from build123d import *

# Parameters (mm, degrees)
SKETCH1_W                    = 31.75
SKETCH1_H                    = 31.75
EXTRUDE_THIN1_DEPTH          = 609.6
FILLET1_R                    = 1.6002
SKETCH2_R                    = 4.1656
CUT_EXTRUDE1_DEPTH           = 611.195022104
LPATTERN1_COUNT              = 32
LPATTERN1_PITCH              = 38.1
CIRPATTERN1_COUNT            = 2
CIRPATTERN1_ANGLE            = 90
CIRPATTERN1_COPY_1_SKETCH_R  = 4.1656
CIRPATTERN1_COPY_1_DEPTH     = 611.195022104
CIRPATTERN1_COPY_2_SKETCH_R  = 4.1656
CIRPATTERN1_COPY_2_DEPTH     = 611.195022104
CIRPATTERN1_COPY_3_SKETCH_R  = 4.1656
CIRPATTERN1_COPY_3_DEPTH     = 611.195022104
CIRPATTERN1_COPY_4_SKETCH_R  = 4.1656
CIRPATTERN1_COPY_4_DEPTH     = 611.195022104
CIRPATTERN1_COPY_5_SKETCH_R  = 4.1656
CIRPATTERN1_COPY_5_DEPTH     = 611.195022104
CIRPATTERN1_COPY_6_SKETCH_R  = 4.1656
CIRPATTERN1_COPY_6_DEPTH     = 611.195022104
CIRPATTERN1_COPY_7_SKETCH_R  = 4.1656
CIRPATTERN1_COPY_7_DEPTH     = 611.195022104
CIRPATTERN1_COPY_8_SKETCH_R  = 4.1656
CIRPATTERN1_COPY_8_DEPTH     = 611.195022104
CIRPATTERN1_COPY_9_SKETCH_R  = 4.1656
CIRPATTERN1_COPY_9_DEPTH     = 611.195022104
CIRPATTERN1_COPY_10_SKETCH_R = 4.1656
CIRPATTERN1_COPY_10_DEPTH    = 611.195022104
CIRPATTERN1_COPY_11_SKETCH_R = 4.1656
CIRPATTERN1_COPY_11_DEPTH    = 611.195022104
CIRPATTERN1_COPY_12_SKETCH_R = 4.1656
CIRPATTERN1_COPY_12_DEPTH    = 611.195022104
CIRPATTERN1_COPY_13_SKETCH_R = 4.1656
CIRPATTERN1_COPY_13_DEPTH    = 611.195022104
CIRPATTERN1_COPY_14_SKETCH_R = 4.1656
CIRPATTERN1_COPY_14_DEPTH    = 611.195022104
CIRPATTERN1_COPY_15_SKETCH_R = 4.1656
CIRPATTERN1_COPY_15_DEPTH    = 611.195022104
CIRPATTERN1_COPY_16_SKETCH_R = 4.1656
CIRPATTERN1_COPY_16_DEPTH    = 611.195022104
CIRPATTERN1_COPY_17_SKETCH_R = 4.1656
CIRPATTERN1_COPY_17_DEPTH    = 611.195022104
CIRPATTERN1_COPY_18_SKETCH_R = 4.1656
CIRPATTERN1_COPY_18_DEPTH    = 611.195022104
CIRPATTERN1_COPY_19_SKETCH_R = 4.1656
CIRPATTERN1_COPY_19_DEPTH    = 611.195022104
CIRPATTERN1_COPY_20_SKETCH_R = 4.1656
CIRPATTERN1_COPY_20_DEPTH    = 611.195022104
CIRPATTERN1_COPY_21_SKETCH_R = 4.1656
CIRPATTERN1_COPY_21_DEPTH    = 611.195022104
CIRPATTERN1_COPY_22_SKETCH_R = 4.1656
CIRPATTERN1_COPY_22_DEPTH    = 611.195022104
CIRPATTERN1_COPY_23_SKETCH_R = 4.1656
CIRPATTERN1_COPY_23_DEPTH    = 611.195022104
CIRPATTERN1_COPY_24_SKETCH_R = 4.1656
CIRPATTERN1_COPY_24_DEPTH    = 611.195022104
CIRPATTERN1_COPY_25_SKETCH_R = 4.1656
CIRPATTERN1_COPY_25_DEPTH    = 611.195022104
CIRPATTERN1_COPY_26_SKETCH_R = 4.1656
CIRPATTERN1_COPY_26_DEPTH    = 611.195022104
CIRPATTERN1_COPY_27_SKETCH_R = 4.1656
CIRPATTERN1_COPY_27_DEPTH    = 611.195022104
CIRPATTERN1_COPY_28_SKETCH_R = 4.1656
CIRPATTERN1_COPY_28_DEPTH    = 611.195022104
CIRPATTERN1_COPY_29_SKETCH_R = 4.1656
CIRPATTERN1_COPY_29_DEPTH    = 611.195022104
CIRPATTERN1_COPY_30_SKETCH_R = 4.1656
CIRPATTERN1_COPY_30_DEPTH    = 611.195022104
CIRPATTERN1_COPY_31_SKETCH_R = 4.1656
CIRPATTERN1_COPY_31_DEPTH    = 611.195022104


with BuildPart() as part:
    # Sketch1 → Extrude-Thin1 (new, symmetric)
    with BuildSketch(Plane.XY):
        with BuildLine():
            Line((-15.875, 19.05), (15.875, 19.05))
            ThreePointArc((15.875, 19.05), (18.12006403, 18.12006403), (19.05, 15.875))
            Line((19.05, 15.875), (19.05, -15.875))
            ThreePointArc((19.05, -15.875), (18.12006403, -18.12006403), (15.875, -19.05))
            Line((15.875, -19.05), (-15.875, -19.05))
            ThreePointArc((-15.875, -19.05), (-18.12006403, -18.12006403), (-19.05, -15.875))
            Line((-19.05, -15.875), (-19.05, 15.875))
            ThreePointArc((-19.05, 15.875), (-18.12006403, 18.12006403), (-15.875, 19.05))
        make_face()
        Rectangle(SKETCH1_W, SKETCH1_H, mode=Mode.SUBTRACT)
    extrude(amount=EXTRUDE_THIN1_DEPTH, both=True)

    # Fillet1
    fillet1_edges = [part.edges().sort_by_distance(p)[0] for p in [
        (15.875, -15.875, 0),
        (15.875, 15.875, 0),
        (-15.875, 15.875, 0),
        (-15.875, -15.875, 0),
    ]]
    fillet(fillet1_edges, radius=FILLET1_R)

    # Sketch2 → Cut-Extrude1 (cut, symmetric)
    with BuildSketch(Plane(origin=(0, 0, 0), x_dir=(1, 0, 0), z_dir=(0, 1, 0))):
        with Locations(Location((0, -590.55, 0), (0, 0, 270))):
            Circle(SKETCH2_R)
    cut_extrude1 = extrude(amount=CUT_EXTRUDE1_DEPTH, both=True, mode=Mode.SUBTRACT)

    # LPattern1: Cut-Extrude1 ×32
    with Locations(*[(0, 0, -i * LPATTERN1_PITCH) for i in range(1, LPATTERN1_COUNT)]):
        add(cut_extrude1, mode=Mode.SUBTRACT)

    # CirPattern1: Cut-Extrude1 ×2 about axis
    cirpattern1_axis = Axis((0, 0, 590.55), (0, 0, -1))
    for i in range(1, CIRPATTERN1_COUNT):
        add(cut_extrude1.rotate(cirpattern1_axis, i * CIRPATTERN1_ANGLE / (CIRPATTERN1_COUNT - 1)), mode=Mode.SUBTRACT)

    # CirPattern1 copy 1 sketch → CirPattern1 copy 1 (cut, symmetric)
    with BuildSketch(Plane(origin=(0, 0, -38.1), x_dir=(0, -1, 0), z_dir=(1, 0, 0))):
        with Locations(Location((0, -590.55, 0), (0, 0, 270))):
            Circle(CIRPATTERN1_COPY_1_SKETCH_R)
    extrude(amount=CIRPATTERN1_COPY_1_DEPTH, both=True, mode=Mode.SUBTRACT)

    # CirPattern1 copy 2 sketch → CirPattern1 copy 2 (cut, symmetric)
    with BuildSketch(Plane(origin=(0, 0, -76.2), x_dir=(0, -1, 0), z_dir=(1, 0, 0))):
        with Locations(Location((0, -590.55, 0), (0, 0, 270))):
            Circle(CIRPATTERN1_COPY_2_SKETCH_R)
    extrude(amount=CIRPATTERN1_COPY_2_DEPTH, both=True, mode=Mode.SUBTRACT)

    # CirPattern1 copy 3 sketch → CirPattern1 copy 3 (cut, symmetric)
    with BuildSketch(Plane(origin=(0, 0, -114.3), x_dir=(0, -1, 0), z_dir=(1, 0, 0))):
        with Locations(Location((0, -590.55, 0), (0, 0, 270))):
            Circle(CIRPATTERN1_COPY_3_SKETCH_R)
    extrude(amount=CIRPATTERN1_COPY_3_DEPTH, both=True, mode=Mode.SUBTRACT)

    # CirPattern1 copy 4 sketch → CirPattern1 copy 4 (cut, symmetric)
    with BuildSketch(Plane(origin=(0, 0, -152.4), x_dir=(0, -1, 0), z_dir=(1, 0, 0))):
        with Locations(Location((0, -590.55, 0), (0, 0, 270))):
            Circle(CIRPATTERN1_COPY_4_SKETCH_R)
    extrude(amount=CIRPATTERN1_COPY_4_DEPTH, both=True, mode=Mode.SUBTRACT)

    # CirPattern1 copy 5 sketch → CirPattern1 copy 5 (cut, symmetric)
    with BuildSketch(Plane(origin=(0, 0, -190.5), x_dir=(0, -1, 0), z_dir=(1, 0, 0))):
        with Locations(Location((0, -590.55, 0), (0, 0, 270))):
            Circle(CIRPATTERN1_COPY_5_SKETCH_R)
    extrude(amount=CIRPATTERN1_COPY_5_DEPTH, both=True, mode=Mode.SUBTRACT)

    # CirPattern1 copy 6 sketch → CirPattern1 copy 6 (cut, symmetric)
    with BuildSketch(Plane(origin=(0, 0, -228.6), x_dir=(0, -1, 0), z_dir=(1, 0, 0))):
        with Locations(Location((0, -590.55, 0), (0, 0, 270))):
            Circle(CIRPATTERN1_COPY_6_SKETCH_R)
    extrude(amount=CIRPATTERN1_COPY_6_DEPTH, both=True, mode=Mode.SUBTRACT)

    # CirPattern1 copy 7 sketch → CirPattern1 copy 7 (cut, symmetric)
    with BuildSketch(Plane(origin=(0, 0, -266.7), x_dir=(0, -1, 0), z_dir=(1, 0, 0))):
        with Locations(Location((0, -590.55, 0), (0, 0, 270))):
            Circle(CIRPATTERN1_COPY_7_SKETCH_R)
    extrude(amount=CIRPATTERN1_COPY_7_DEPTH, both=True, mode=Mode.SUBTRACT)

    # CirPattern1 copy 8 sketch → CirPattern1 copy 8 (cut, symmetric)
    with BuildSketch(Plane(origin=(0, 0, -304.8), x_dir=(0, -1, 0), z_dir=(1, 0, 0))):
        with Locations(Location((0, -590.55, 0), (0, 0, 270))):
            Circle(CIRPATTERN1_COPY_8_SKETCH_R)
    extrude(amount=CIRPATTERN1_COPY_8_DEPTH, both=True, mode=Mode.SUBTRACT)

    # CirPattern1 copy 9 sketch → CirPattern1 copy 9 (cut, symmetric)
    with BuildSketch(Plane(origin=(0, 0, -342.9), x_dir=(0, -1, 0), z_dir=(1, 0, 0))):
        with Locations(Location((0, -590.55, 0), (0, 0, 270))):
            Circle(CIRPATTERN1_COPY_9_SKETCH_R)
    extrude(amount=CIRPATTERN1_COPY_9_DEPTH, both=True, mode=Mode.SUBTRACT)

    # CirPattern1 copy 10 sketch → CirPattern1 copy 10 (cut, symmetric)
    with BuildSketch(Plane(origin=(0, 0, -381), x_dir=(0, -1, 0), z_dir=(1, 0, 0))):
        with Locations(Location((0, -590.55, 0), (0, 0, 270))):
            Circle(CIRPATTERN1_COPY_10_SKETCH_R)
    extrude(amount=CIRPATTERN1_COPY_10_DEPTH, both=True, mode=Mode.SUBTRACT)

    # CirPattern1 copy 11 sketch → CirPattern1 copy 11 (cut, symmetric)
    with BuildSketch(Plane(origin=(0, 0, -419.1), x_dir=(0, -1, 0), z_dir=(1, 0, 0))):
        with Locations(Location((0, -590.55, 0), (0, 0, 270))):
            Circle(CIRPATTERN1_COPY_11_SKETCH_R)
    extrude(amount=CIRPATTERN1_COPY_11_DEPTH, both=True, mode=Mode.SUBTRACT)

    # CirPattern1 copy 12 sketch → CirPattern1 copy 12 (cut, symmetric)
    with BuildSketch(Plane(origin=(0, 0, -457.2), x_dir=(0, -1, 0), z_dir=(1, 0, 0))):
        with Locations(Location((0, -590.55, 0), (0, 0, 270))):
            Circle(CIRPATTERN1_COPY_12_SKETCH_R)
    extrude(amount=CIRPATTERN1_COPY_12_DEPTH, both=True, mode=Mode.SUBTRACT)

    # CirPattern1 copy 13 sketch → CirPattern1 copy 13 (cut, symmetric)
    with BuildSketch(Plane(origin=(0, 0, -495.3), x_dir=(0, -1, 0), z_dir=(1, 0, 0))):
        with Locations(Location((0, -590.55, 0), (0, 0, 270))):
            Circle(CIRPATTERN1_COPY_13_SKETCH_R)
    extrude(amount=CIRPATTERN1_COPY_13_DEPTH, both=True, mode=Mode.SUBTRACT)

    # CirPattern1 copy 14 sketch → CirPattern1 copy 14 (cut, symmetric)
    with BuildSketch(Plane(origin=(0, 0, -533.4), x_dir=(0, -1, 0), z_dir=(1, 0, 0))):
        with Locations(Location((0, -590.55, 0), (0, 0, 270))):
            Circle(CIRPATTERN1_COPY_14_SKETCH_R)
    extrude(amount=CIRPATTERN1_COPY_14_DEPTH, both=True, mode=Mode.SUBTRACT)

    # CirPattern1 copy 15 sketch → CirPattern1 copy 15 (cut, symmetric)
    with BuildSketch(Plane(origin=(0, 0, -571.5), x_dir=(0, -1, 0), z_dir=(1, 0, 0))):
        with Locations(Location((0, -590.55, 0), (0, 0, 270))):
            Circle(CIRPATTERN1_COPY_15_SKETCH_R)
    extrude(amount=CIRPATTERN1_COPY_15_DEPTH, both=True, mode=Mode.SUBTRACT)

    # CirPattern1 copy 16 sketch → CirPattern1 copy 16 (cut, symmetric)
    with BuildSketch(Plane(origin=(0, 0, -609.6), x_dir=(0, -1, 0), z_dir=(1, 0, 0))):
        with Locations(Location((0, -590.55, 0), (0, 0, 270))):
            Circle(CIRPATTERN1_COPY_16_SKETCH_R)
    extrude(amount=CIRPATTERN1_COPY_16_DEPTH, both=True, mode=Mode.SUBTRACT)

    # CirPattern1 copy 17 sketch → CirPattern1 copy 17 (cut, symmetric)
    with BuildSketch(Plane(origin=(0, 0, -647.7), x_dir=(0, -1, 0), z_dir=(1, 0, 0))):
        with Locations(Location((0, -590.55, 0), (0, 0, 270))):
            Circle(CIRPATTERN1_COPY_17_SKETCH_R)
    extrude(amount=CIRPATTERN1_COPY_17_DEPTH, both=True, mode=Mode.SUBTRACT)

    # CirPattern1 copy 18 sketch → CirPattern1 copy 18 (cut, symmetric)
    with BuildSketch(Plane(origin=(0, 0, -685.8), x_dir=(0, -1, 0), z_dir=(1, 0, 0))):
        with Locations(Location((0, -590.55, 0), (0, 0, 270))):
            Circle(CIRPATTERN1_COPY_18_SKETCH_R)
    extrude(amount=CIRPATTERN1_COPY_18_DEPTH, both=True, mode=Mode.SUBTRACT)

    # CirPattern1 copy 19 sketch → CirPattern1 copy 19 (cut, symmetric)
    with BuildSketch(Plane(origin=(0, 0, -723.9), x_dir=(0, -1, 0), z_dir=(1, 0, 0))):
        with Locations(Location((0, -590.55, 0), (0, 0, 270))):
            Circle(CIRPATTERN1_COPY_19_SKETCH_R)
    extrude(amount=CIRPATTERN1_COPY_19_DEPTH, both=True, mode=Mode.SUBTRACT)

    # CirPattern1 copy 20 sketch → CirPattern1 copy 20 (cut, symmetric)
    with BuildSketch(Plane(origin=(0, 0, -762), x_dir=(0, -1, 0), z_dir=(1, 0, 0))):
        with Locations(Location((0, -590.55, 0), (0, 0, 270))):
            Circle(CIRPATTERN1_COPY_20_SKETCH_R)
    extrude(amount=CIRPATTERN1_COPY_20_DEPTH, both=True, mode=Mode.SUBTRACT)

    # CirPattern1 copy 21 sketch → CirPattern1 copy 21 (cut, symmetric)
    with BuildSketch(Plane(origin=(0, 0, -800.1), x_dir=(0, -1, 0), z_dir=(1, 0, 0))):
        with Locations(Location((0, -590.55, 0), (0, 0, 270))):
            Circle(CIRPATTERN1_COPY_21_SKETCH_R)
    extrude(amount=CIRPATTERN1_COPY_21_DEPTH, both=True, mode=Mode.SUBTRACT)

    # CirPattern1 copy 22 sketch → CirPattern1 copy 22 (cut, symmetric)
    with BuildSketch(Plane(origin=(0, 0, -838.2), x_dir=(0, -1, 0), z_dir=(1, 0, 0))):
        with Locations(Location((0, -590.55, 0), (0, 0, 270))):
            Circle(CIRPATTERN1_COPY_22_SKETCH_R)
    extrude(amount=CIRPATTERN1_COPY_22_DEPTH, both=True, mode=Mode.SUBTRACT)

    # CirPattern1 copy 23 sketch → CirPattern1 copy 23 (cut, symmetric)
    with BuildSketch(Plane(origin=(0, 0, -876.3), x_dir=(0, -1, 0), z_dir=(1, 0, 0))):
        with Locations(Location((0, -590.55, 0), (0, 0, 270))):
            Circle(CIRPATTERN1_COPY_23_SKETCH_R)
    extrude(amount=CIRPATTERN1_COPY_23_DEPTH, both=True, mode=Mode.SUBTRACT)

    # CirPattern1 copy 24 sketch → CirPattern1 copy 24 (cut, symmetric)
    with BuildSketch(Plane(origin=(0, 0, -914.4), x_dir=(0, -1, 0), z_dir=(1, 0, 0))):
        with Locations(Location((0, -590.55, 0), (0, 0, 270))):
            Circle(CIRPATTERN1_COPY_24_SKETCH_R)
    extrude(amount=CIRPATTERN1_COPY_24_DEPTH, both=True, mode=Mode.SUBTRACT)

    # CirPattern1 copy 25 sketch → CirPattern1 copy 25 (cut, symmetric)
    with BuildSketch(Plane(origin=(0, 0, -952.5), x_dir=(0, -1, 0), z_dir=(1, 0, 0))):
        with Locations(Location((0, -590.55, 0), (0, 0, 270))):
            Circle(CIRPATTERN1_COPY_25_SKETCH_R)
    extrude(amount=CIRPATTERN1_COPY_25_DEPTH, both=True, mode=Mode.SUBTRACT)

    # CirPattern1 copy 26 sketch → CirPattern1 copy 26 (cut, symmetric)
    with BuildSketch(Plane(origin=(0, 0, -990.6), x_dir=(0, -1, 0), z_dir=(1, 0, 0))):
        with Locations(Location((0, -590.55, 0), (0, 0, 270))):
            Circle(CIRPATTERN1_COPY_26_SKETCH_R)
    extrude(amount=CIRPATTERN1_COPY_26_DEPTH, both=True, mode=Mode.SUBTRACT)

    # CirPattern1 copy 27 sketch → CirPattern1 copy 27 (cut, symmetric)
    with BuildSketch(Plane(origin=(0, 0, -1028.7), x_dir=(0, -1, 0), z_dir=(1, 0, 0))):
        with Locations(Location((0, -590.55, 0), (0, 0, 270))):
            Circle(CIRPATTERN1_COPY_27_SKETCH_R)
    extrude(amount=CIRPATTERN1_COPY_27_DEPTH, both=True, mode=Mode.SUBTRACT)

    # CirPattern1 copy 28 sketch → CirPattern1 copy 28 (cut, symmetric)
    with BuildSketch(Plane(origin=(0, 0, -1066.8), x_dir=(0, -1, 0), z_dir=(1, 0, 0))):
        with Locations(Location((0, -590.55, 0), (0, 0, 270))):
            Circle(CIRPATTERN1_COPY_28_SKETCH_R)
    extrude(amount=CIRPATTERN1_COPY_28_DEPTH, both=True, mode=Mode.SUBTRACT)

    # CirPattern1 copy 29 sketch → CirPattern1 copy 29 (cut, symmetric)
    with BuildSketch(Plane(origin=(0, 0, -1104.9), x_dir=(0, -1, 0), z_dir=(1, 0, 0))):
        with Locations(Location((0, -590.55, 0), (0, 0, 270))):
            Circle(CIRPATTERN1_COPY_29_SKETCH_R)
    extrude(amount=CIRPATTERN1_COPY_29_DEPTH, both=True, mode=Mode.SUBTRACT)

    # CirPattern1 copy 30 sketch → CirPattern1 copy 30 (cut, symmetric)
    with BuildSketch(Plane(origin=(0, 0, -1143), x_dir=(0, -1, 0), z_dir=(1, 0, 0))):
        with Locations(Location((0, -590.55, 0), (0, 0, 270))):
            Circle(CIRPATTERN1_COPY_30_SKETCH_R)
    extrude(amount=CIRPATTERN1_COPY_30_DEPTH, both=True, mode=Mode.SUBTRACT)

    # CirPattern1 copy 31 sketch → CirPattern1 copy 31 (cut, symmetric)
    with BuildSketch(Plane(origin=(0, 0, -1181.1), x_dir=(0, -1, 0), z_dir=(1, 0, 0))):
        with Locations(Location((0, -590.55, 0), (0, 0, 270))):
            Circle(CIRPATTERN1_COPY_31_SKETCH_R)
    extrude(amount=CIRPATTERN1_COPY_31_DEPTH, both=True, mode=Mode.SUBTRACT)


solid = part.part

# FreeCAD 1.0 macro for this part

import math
import FreeCAD as App
import Part
import Sketcher

V = App.Vector
Q = App.Units.Quantity


def edges_at(feature, points):
    """Names of the edges that pass closest to the given points."""
    edges = feature.Shape.Edges
    near = lambda p: min(range(len(edges)), key=lambda i: edges[i].distToShape(Part.Vertex(*p))[0])
    return sorted({f"Edge{near(p) + 1}" for p in points})


def add_polygon(sketch, points):
    """Adds a closed chain of lines whose ends are joined by coincident constraints."""
    first, n = sketch.GeometryCount, len(points)
    for a, b in zip(points, points[1:] + points[:1]):
        sketch.addGeometry(Part.LineSegment(App.Vector(*a, 0), App.Vector(*b, 0)), False)
    for i in range(n):
        sketch.addConstraint(Sketcher.Constraint("Coincident", first + i, 2, first + (i + 1) % n, 1))

doc = App.newDocument("Part")
body = doc.addObject("PartDesign::Body", "Body")

sketch1 = body.newObject("Sketcher::SketchObject", "Sketch")
sketch1.AttachmentSupport = (doc.getObject("XY_Plane"), [""])
sketch1.MapMode = "FlatFace"
sketch1.addGeometry(Part.LineSegment(V(15.9, 19.1, 0), V(-15.9, 19.1, 0)), False)
sketch1.addGeometry(Part.ArcOfCircle(Part.Circle(V(-15.9, 15.9, 0), V(0, 0, 1), 3.2), math.radians(90), math.radians(180)), False)
sketch1.addGeometry(Part.LineSegment(V(-19.1, 15.9, 0), V(-19.1, -15.9, 0)), False)
sketch1.addGeometry(Part.ArcOfCircle(Part.Circle(V(-15.9, -15.9, 0), V(0, 0, 1), 3.2), math.radians(-180), math.radians(-90)), False)
sketch1.addGeometry(Part.LineSegment(V(-15.9, -19.1, 0), V(15.9, -19.1, 0)), False)
sketch1.addGeometry(Part.ArcOfCircle(Part.Circle(V(15.9, -15.9, 0), V(0, 0, 1), 3.2), math.radians(-90), math.radians(0)), False)
sketch1.addGeometry(Part.LineSegment(V(19.1, -15.9, 0), V(19.1, 15.9, 0)), False)
sketch1.addGeometry(Part.ArcOfCircle(Part.Circle(V(15.9, 15.9, 0), V(0, 0, 1), 3.2), math.radians(0), math.radians(90)), False)
add_polygon(sketch1, [(-15.9, -15.9), (-15.9, 15.9), (15.9, 15.9), (15.9, -15.9)])
sketch1.addConstraint([
    Sketcher.Constraint("Tangent", 0, 2, 1, 1),
    Sketcher.Constraint("Tangent", 1, 2, 2, 1),
    Sketcher.Constraint("Tangent", 2, 2, 3, 1),
    Sketcher.Constraint("Tangent", 3, 2, 4, 1),
    Sketcher.Constraint("Tangent", 4, 2, 5, 1),
    Sketcher.Constraint("Tangent", 5, 2, 6, 1),
    Sketcher.Constraint("Tangent", 6, 2, 7, 1),
    Sketcher.Constraint("Tangent", 7, 2, 0, 1),
    Sketcher.Constraint("Horizontal", 0),
    Sketcher.Constraint("Vertical", 2),
    Sketcher.Constraint("Horizontal", 4),
    Sketcher.Constraint("Vertical", 6),
    Sketcher.Constraint("Vertical", 8),
    Sketcher.Constraint("Horizontal", 9),
    Sketcher.Constraint("Vertical", 10),
    Sketcher.Constraint("Horizontal", 11),
    Sketcher.Constraint("Coincident", 8, 2, 1, 3),
    Sketcher.Constraint("Coincident", 9, 2, 7, 3),
    Sketcher.Constraint("Coincident", 10, 2, 5, 3),
    Sketcher.Constraint("Equal", 1, 3),
    Sketcher.Constraint("Symmetric", 1, 3, 5, 3, -1, 1),
    Sketcher.Constraint("Equal", 11, 2),
    Sketcher.Constraint("Radius", 1, Q("0.125 in")),
    Sketcher.Constraint("DistanceX", 0, 2, 0, 1, Q("1.25 in")),
])
pad1 = body.newObject("PartDesign::Pad", "Pad")
pad1.Profile = sketch1
pad1.Length = Q("48 in")
pad1.Midplane = True
doc.recompute()

fillet = body.newObject("PartDesign::Fillet", "Fillet")
fillet.Base = (pad1, edges_at(pad1, [
    (15.875, -15.875, 0),
    (15.875, 15.875, 0),
    (-15.875, 15.875, 0),
    (-15.875, -15.875, 0),
]))
fillet.Radius = Q("0.063 in")

sketch2 = body.newObject("Sketcher::SketchObject", "Sketch001")
sketch2.AttachmentSupport = (doc.getObject("XZ_Plane"), [""])
sketch2.MapMode = "FlatFace"
sketch2.addGeometry(Part.Circle(V(0, 590.5, 0), V(0, 0, 1), 4.2), False)
sketch2.addConstraint([
    Sketcher.Constraint("PointOnObject", 0, 3, -2),
    Sketcher.Constraint("Diameter", 0, Q("0.328 in")),
    Sketcher.Constraint("DistanceY", -1, 1, 0, 3, Q("23.25 in")),
])
pocket1 = body.newObject("PartDesign::Pocket", "Pocket")
pocket1.Profile = sketch2
pocket1.Length = 1222.390044
pocket1.Midplane = True
doc.recompute()

linearpattern = body.newObject("PartDesign::LinearPattern", "LinearPattern")
linearpattern.Originals = [pocket1]
linearpattern.Direction = (doc.getObject("Z_Axis"), [""])
linearpattern.Mode = "offset"
linearpattern.Offset = Q("1.5 in")
linearpattern.Occurrences = 32
linearpattern.Reversed = True
body.Tip = linearpattern
doc.recompute()

polarpattern = body.newObject("PartDesign::PolarPattern", "PolarPattern")
polarpattern.Originals = [pocket1]
polarpattern.Axis = (doc.getObject("Z_Axis"), [""])
polarpattern.Angle = 90
polarpattern.Occurrences = 2
polarpattern.Reversed = True
body.Tip = polarpattern

sketch3 = body.newObject("Sketcher::SketchObject", "Sketch002")
sketch3.AttachmentSupport = (doc.getObject("YZ_Plane"), [""])
sketch3.MapMode = "FlatFace"
sketch3.addGeometry(Part.Circle(V(0, 552.5, 0), V(0, 0, 1), 4.2), False)
sketch3.addConstraint([
    Sketcher.Constraint("PointOnObject", 0, 3, -2),
    Sketcher.Constraint("Diameter", 0, Q("0.328 in")),
    Sketcher.Constraint("DistanceY", -1, 1, 0, 3, Q("21.75 in")),
])
pocket2 = body.newObject("PartDesign::Pocket", "Pocket001")
pocket2.Profile = sketch3
pocket2.Length = 1222.390044
pocket2.Midplane = True

sketch4 = body.newObject("Sketcher::SketchObject", "Sketch003")
sketch4.AttachmentSupport = (doc.getObject("YZ_Plane"), [""])
sketch4.MapMode = "FlatFace"
sketch4.addGeometry(Part.Circle(V(0, 514.4, 0), V(0, 0, 1), 4.2), False)
sketch4.addConstraint([
    Sketcher.Constraint("PointOnObject", 0, 3, -2),
    Sketcher.Constraint("Diameter", 0, Q("0.328 in")),
    Sketcher.Constraint("DistanceY", -1, 1, 0, 3, Q("20.25 in")),
])
pocket3 = body.newObject("PartDesign::Pocket", "Pocket002")
pocket3.Profile = sketch4
pocket3.Length = 1222.390044
pocket3.Midplane = True

sketch5 = body.newObject("Sketcher::SketchObject", "Sketch004")
sketch5.AttachmentSupport = (doc.getObject("YZ_Plane"), [""])
sketch5.MapMode = "FlatFace"
sketch5.addGeometry(Part.Circle(V(0, 476.2, 0), V(0, 0, 1), 4.2), False)
sketch5.addConstraint([
    Sketcher.Constraint("PointOnObject", 0, 3, -2),
    Sketcher.Constraint("Diameter", 0, Q("0.328 in")),
    Sketcher.Constraint("DistanceY", -1, 1, 0, 3, Q("18.75 in")),
])
pocket4 = body.newObject("PartDesign::Pocket", "Pocket003")
pocket4.Profile = sketch5
pocket4.Length = 1222.390044
pocket4.Midplane = True

sketch6 = body.newObject("Sketcher::SketchObject", "Sketch005")
sketch6.AttachmentSupport = (doc.getObject("YZ_Plane"), [""])
sketch6.MapMode = "FlatFace"
sketch6.addGeometry(Part.Circle(V(0, 438.1, 0), V(0, 0, 1), 4.2), False)
sketch6.addConstraint([
    Sketcher.Constraint("PointOnObject", 0, 3, -2),
    Sketcher.Constraint("Diameter", 0, Q("0.328 in")),
    Sketcher.Constraint("DistanceY", -1, 1, 0, 3, Q("17.25 in")),
])
pocket5 = body.newObject("PartDesign::Pocket", "Pocket004")
pocket5.Profile = sketch6
pocket5.Length = 1222.390044
pocket5.Midplane = True

sketch7 = body.newObject("Sketcher::SketchObject", "Sketch006")
sketch7.AttachmentSupport = (doc.getObject("YZ_Plane"), [""])
sketch7.MapMode = "FlatFace"
sketch7.addGeometry(Part.Circle(V(0, 400.1, 0), V(0, 0, 1), 4.2), False)
sketch7.addConstraint([
    Sketcher.Constraint("PointOnObject", 0, 3, -2),
    Sketcher.Constraint("Diameter", 0, Q("0.328 in")),
    Sketcher.Constraint("DistanceY", -1, 1, 0, 3, Q("15.75 in")),
])
pocket6 = body.newObject("PartDesign::Pocket", "Pocket005")
pocket6.Profile = sketch7
pocket6.Length = 1222.390044
pocket6.Midplane = True

sketch8 = body.newObject("Sketcher::SketchObject", "Sketch007")
sketch8.AttachmentSupport = (doc.getObject("YZ_Plane"), [""])
sketch8.MapMode = "FlatFace"
sketch8.addGeometry(Part.Circle(V(0, 361.9, 0), V(0, 0, 1), 4.2), False)
sketch8.addConstraint([
    Sketcher.Constraint("PointOnObject", 0, 3, -2),
    Sketcher.Constraint("Diameter", 0, Q("0.328 in")),
    Sketcher.Constraint("DistanceY", -1, 1, 0, 3, Q("14.25 in")),
])
pocket7 = body.newObject("PartDesign::Pocket", "Pocket006")
pocket7.Profile = sketch8
pocket7.Length = 1222.390044
pocket7.Midplane = True

sketch9 = body.newObject("Sketcher::SketchObject", "Sketch008")
sketch9.AttachmentSupport = (doc.getObject("YZ_Plane"), [""])
sketch9.MapMode = "FlatFace"
sketch9.addGeometry(Part.Circle(V(0, 323.9, 0), V(0, 0, 1), 4.2), False)
sketch9.addConstraint([
    Sketcher.Constraint("PointOnObject", 0, 3, -2),
    Sketcher.Constraint("Diameter", 0, Q("0.328 in")),
    Sketcher.Constraint("DistanceY", -1, 1, 0, 3, Q("12.75 in")),
])
pocket8 = body.newObject("PartDesign::Pocket", "Pocket007")
pocket8.Profile = sketch9
pocket8.Length = 1222.390044
pocket8.Midplane = True

sketch10 = body.newObject("Sketcher::SketchObject", "Sketch009")
sketch10.AttachmentSupport = (doc.getObject("YZ_Plane"), [""])
sketch10.MapMode = "FlatFace"
sketch10.addGeometry(Part.Circle(V(0, 285.8, 0), V(0, 0, 1), 4.2), False)
sketch10.addConstraint([
    Sketcher.Constraint("PointOnObject", 0, 3, -2),
    Sketcher.Constraint("Diameter", 0, Q("0.328 in")),
    Sketcher.Constraint("DistanceY", -1, 1, 0, 3, Q("11.25 in")),
])
pocket9 = body.newObject("PartDesign::Pocket", "Pocket008")
pocket9.Profile = sketch10
pocket9.Length = 1222.390044
pocket9.Midplane = True

sketch11 = body.newObject("Sketcher::SketchObject", "Sketch010")
sketch11.AttachmentSupport = (doc.getObject("YZ_Plane"), [""])
sketch11.MapMode = "FlatFace"
sketch11.addGeometry(Part.Circle(V(0, 247.7, 0), V(0, 0, 1), 4.2), False)
sketch11.addConstraint([
    Sketcher.Constraint("PointOnObject", 0, 3, -2),
    Sketcher.Constraint("Diameter", 0, Q("0.328 in")),
    Sketcher.Constraint("DistanceY", -1, 1, 0, 3, Q("9.75 in")),
])
pocket10 = body.newObject("PartDesign::Pocket", "Pocket009")
pocket10.Profile = sketch11
pocket10.Length = 1222.390044
pocket10.Midplane = True

sketch12 = body.newObject("Sketcher::SketchObject", "Sketch011")
sketch12.AttachmentSupport = (doc.getObject("YZ_Plane"), [""])
sketch12.MapMode = "FlatFace"
sketch12.addGeometry(Part.Circle(V(0, 209.6, 0), V(0, 0, 1), 4.2), False)
sketch12.addConstraint([
    Sketcher.Constraint("PointOnObject", 0, 3, -2),
    Sketcher.Constraint("Diameter", 0, Q("0.328 in")),
    Sketcher.Constraint("DistanceY", -1, 1, 0, 3, Q("8.25 in")),
])
pocket11 = body.newObject("PartDesign::Pocket", "Pocket010")
pocket11.Profile = sketch12
pocket11.Length = 1222.390044
pocket11.Midplane = True

sketch13 = body.newObject("Sketcher::SketchObject", "Sketch012")
sketch13.AttachmentSupport = (doc.getObject("YZ_Plane"), [""])
sketch13.MapMode = "FlatFace"
sketch13.addGeometry(Part.Circle(V(0, 171.4, 0), V(0, 0, 1), 4.2), False)
sketch13.addConstraint([
    Sketcher.Constraint("PointOnObject", 0, 3, -2),
    Sketcher.Constraint("Diameter", 0, Q("0.328 in")),
    Sketcher.Constraint("DistanceY", -1, 1, 0, 3, Q("6.75 in")),
])
pocket12 = body.newObject("PartDesign::Pocket", "Pocket011")
pocket12.Profile = sketch13
pocket12.Length = 1222.390044
pocket12.Midplane = True

sketch14 = body.newObject("Sketcher::SketchObject", "Sketch013")
sketch14.AttachmentSupport = (doc.getObject("YZ_Plane"), [""])
sketch14.MapMode = "FlatFace"
sketch14.addGeometry(Part.Circle(V(0, 133.3, 0), V(0, 0, 1), 4.2), False)
sketch14.addConstraint([
    Sketcher.Constraint("PointOnObject", 0, 3, -2),
    Sketcher.Constraint("Diameter", 0, Q("0.328 in")),
    Sketcher.Constraint("DistanceY", -1, 1, 0, 3, Q("5.25 in")),
])
pocket13 = body.newObject("PartDesign::Pocket", "Pocket012")
pocket13.Profile = sketch14
pocket13.Length = 1222.390044
pocket13.Midplane = True

sketch15 = body.newObject("Sketcher::SketchObject", "Sketch014")
sketch15.AttachmentSupport = (doc.getObject("YZ_Plane"), [""])
sketch15.MapMode = "FlatFace"
sketch15.addGeometry(Part.Circle(V(0, 95.2, 0), V(0, 0, 1), 4.2), False)
sketch15.addConstraint([
    Sketcher.Constraint("PointOnObject", 0, 3, -2),
    Sketcher.Constraint("Diameter", 0, Q("0.328 in")),
    Sketcher.Constraint("DistanceY", -1, 1, 0, 3, Q("3.75 in")),
])
pocket14 = body.newObject("PartDesign::Pocket", "Pocket013")
pocket14.Profile = sketch15
pocket14.Length = 1222.390044
pocket14.Midplane = True

sketch16 = body.newObject("Sketcher::SketchObject", "Sketch015")
sketch16.AttachmentSupport = (doc.getObject("YZ_Plane"), [""])
sketch16.MapMode = "FlatFace"
sketch16.addGeometry(Part.Circle(V(0, 57.1, 0), V(0, 0, 1), 4.2), False)
sketch16.addConstraint([
    Sketcher.Constraint("PointOnObject", 0, 3, -2),
    Sketcher.Constraint("Diameter", 0, Q("0.328 in")),
    Sketcher.Constraint("DistanceY", -1, 1, 0, 3, Q("2.25 in")),
])
pocket15 = body.newObject("PartDesign::Pocket", "Pocket014")
pocket15.Profile = sketch16
pocket15.Length = 1222.390044
pocket15.Midplane = True

sketch17 = body.newObject("Sketcher::SketchObject", "Sketch016")
sketch17.AttachmentSupport = (doc.getObject("YZ_Plane"), [""])
sketch17.MapMode = "FlatFace"
sketch17.addGeometry(Part.Circle(V(0, 19.1, 0), V(0, 0, 1), 4.2), False)
sketch17.addConstraint([
    Sketcher.Constraint("PointOnObject", 0, 3, -2),
    Sketcher.Constraint("Diameter", 0, Q("0.328 in")),
    Sketcher.Constraint("DistanceY", -1, 1, 0, 3, Q("0.75 in")),
])
pocket16 = body.newObject("PartDesign::Pocket", "Pocket015")
pocket16.Profile = sketch17
pocket16.Length = 1222.390044
pocket16.Midplane = True

sketch18 = body.newObject("Sketcher::SketchObject", "Sketch017")
sketch18.AttachmentSupport = (doc.getObject("YZ_Plane"), [""])
sketch18.MapMode = "FlatFace"
sketch18.addGeometry(Part.Circle(V(0, -19.1, 0), V(0, 0, 1), 4.2), False)
sketch18.addConstraint([
    Sketcher.Constraint("PointOnObject", 0, 3, -2),
    Sketcher.Constraint("Diameter", 0, Q("0.328 in")),
    Sketcher.Constraint("DistanceY", 0, 3, -1, 1, Q("0.75 in")),
])
pocket17 = body.newObject("PartDesign::Pocket", "Pocket016")
pocket17.Profile = sketch18
pocket17.Length = 1222.390044
pocket17.Midplane = True

sketch19 = body.newObject("Sketcher::SketchObject", "Sketch018")
sketch19.AttachmentSupport = (doc.getObject("YZ_Plane"), [""])
sketch19.MapMode = "FlatFace"
sketch19.addGeometry(Part.Circle(V(0, -57.1, 0), V(0, 0, 1), 4.2), False)
sketch19.addConstraint([
    Sketcher.Constraint("PointOnObject", 0, 3, -2),
    Sketcher.Constraint("Diameter", 0, Q("0.328 in")),
    Sketcher.Constraint("DistanceY", 0, 3, -1, 1, Q("2.25 in")),
])
pocket18 = body.newObject("PartDesign::Pocket", "Pocket017")
pocket18.Profile = sketch19
pocket18.Length = 1222.390044
pocket18.Midplane = True

sketch20 = body.newObject("Sketcher::SketchObject", "Sketch019")
sketch20.AttachmentSupport = (doc.getObject("YZ_Plane"), [""])
sketch20.MapMode = "FlatFace"
sketch20.addGeometry(Part.Circle(V(0, -95.2, 0), V(0, 0, 1), 4.2), False)
sketch20.addConstraint([
    Sketcher.Constraint("PointOnObject", 0, 3, -2),
    Sketcher.Constraint("Diameter", 0, Q("0.328 in")),
    Sketcher.Constraint("DistanceY", 0, 3, -1, 1, Q("3.75 in")),
])
pocket19 = body.newObject("PartDesign::Pocket", "Pocket018")
pocket19.Profile = sketch20
pocket19.Length = 1222.390044
pocket19.Midplane = True

sketch21 = body.newObject("Sketcher::SketchObject", "Sketch020")
sketch21.AttachmentSupport = (doc.getObject("YZ_Plane"), [""])
sketch21.MapMode = "FlatFace"
sketch21.addGeometry(Part.Circle(V(0, -133.3, 0), V(0, 0, 1), 4.2), False)
sketch21.addConstraint([
    Sketcher.Constraint("PointOnObject", 0, 3, -2),
    Sketcher.Constraint("Diameter", 0, Q("0.328 in")),
    Sketcher.Constraint("DistanceY", 0, 3, -1, 1, Q("5.25 in")),
])
pocket20 = body.newObject("PartDesign::Pocket", "Pocket019")
pocket20.Profile = sketch21
pocket20.Length = 1222.390044
pocket20.Midplane = True

sketch22 = body.newObject("Sketcher::SketchObject", "Sketch021")
sketch22.AttachmentSupport = (doc.getObject("YZ_Plane"), [""])
sketch22.MapMode = "FlatFace"
sketch22.addGeometry(Part.Circle(V(0, -171.4, 0), V(0, 0, 1), 4.2), False)
sketch22.addConstraint([
    Sketcher.Constraint("PointOnObject", 0, 3, -2),
    Sketcher.Constraint("Diameter", 0, Q("0.328 in")),
    Sketcher.Constraint("DistanceY", 0, 3, -1, 1, Q("6.75 in")),
])
pocket21 = body.newObject("PartDesign::Pocket", "Pocket020")
pocket21.Profile = sketch22
pocket21.Length = 1222.390044
pocket21.Midplane = True

sketch23 = body.newObject("Sketcher::SketchObject", "Sketch022")
sketch23.AttachmentSupport = (doc.getObject("YZ_Plane"), [""])
sketch23.MapMode = "FlatFace"
sketch23.addGeometry(Part.Circle(V(0, -209.6, 0), V(0, 0, 1), 4.2), False)
sketch23.addConstraint([
    Sketcher.Constraint("PointOnObject", 0, 3, -2),
    Sketcher.Constraint("Diameter", 0, Q("0.328 in")),
    Sketcher.Constraint("DistanceY", 0, 3, -1, 1, Q("8.25 in")),
])
pocket22 = body.newObject("PartDesign::Pocket", "Pocket021")
pocket22.Profile = sketch23
pocket22.Length = 1222.390044
pocket22.Midplane = True

sketch24 = body.newObject("Sketcher::SketchObject", "Sketch023")
sketch24.AttachmentSupport = (doc.getObject("YZ_Plane"), [""])
sketch24.MapMode = "FlatFace"
sketch24.addGeometry(Part.Circle(V(0, -247.7, 0), V(0, 0, 1), 4.2), False)
sketch24.addConstraint([
    Sketcher.Constraint("PointOnObject", 0, 3, -2),
    Sketcher.Constraint("Diameter", 0, Q("0.328 in")),
    Sketcher.Constraint("DistanceY", 0, 3, -1, 1, Q("9.75 in")),
])
pocket23 = body.newObject("PartDesign::Pocket", "Pocket022")
pocket23.Profile = sketch24
pocket23.Length = 1222.390044
pocket23.Midplane = True

sketch25 = body.newObject("Sketcher::SketchObject", "Sketch024")
sketch25.AttachmentSupport = (doc.getObject("YZ_Plane"), [""])
sketch25.MapMode = "FlatFace"
sketch25.addGeometry(Part.Circle(V(0, -285.8, 0), V(0, 0, 1), 4.2), False)
sketch25.addConstraint([
    Sketcher.Constraint("PointOnObject", 0, 3, -2),
    Sketcher.Constraint("Diameter", 0, Q("0.328 in")),
    Sketcher.Constraint("DistanceY", 0, 3, -1, 1, Q("11.25 in")),
])
pocket24 = body.newObject("PartDesign::Pocket", "Pocket023")
pocket24.Profile = sketch25
pocket24.Length = 1222.390044
pocket24.Midplane = True

sketch26 = body.newObject("Sketcher::SketchObject", "Sketch025")
sketch26.AttachmentSupport = (doc.getObject("YZ_Plane"), [""])
sketch26.MapMode = "FlatFace"
sketch26.addGeometry(Part.Circle(V(0, -323.9, 0), V(0, 0, 1), 4.2), False)
sketch26.addConstraint([
    Sketcher.Constraint("PointOnObject", 0, 3, -2),
    Sketcher.Constraint("Diameter", 0, Q("0.328 in")),
    Sketcher.Constraint("DistanceY", 0, 3, -1, 1, Q("12.75 in")),
])
pocket25 = body.newObject("PartDesign::Pocket", "Pocket024")
pocket25.Profile = sketch26
pocket25.Length = 1222.390044
pocket25.Midplane = True

sketch27 = body.newObject("Sketcher::SketchObject", "Sketch026")
sketch27.AttachmentSupport = (doc.getObject("YZ_Plane"), [""])
sketch27.MapMode = "FlatFace"
sketch27.addGeometry(Part.Circle(V(0, -361.9, 0), V(0, 0, 1), 4.2), False)
sketch27.addConstraint([
    Sketcher.Constraint("PointOnObject", 0, 3, -2),
    Sketcher.Constraint("Diameter", 0, Q("0.328 in")),
    Sketcher.Constraint("DistanceY", 0, 3, -1, 1, Q("14.25 in")),
])
pocket26 = body.newObject("PartDesign::Pocket", "Pocket025")
pocket26.Profile = sketch27
pocket26.Length = 1222.390044
pocket26.Midplane = True

sketch28 = body.newObject("Sketcher::SketchObject", "Sketch027")
sketch28.AttachmentSupport = (doc.getObject("YZ_Plane"), [""])
sketch28.MapMode = "FlatFace"
sketch28.addGeometry(Part.Circle(V(0, -400.1, 0), V(0, 0, 1), 4.2), False)
sketch28.addConstraint([
    Sketcher.Constraint("PointOnObject", 0, 3, -2),
    Sketcher.Constraint("Diameter", 0, Q("0.328 in")),
    Sketcher.Constraint("DistanceY", 0, 3, -1, 1, Q("15.75 in")),
])
pocket27 = body.newObject("PartDesign::Pocket", "Pocket026")
pocket27.Profile = sketch28
pocket27.Length = 1222.390044
pocket27.Midplane = True

sketch29 = body.newObject("Sketcher::SketchObject", "Sketch028")
sketch29.AttachmentSupport = (doc.getObject("YZ_Plane"), [""])
sketch29.MapMode = "FlatFace"
sketch29.addGeometry(Part.Circle(V(0, -438.1, 0), V(0, 0, 1), 4.2), False)
sketch29.addConstraint([
    Sketcher.Constraint("PointOnObject", 0, 3, -2),
    Sketcher.Constraint("Diameter", 0, Q("0.328 in")),
    Sketcher.Constraint("DistanceY", 0, 3, -1, 1, Q("17.25 in")),
])
pocket28 = body.newObject("PartDesign::Pocket", "Pocket027")
pocket28.Profile = sketch29
pocket28.Length = 1222.390044
pocket28.Midplane = True

sketch30 = body.newObject("Sketcher::SketchObject", "Sketch029")
sketch30.AttachmentSupport = (doc.getObject("YZ_Plane"), [""])
sketch30.MapMode = "FlatFace"
sketch30.addGeometry(Part.Circle(V(0, -476.2, 0), V(0, 0, 1), 4.2), False)
sketch30.addConstraint([
    Sketcher.Constraint("PointOnObject", 0, 3, -2),
    Sketcher.Constraint("Diameter", 0, Q("0.328 in")),
    Sketcher.Constraint("DistanceY", 0, 3, -1, 1, Q("18.75 in")),
])
pocket29 = body.newObject("PartDesign::Pocket", "Pocket028")
pocket29.Profile = sketch30
pocket29.Length = 1222.390044
pocket29.Midplane = True

sketch31 = body.newObject("Sketcher::SketchObject", "Sketch030")
sketch31.AttachmentSupport = (doc.getObject("YZ_Plane"), [""])
sketch31.MapMode = "FlatFace"
sketch31.addGeometry(Part.Circle(V(0, -514.4, 0), V(0, 0, 1), 4.2), False)
sketch31.addConstraint([
    Sketcher.Constraint("PointOnObject", 0, 3, -2),
    Sketcher.Constraint("Diameter", 0, Q("0.328 in")),
    Sketcher.Constraint("DistanceY", 0, 3, -1, 1, Q("20.25 in")),
])
pocket30 = body.newObject("PartDesign::Pocket", "Pocket029")
pocket30.Profile = sketch31
pocket30.Length = 1222.390044
pocket30.Midplane = True

sketch32 = body.newObject("Sketcher::SketchObject", "Sketch031")
sketch32.AttachmentSupport = (doc.getObject("YZ_Plane"), [""])
sketch32.MapMode = "FlatFace"
sketch32.addGeometry(Part.Circle(V(0, -552.5, 0), V(0, 0, 1), 4.2), False)
sketch32.addConstraint([
    Sketcher.Constraint("PointOnObject", 0, 3, -2),
    Sketcher.Constraint("Diameter", 0, Q("0.328 in")),
    Sketcher.Constraint("DistanceY", 0, 3, -1, 1, Q("21.75 in")),
])
pocket31 = body.newObject("PartDesign::Pocket", "Pocket030")
pocket31.Profile = sketch32
pocket31.Length = 1222.390044
pocket31.Midplane = True

sketch33 = body.newObject("Sketcher::SketchObject", "Sketch032")
sketch33.AttachmentSupport = (doc.getObject("YZ_Plane"), [""])
sketch33.MapMode = "FlatFace"
sketch33.addGeometry(Part.Circle(V(0, -590.5, 0), V(0, 0, 1), 4.2), False)
sketch33.addConstraint([
    Sketcher.Constraint("PointOnObject", 0, 3, -2),
    Sketcher.Constraint("Diameter", 0, Q("0.328 in")),
    Sketcher.Constraint("DistanceY", 0, 3, -1, 1, Q("23.25 in")),
])
pocket32 = body.newObject("PartDesign::Pocket", "Pocket031")
pocket32.Profile = sketch33
pocket32.Length = 1222.390044
pocket32.Midplane = True

doc.recompute()
